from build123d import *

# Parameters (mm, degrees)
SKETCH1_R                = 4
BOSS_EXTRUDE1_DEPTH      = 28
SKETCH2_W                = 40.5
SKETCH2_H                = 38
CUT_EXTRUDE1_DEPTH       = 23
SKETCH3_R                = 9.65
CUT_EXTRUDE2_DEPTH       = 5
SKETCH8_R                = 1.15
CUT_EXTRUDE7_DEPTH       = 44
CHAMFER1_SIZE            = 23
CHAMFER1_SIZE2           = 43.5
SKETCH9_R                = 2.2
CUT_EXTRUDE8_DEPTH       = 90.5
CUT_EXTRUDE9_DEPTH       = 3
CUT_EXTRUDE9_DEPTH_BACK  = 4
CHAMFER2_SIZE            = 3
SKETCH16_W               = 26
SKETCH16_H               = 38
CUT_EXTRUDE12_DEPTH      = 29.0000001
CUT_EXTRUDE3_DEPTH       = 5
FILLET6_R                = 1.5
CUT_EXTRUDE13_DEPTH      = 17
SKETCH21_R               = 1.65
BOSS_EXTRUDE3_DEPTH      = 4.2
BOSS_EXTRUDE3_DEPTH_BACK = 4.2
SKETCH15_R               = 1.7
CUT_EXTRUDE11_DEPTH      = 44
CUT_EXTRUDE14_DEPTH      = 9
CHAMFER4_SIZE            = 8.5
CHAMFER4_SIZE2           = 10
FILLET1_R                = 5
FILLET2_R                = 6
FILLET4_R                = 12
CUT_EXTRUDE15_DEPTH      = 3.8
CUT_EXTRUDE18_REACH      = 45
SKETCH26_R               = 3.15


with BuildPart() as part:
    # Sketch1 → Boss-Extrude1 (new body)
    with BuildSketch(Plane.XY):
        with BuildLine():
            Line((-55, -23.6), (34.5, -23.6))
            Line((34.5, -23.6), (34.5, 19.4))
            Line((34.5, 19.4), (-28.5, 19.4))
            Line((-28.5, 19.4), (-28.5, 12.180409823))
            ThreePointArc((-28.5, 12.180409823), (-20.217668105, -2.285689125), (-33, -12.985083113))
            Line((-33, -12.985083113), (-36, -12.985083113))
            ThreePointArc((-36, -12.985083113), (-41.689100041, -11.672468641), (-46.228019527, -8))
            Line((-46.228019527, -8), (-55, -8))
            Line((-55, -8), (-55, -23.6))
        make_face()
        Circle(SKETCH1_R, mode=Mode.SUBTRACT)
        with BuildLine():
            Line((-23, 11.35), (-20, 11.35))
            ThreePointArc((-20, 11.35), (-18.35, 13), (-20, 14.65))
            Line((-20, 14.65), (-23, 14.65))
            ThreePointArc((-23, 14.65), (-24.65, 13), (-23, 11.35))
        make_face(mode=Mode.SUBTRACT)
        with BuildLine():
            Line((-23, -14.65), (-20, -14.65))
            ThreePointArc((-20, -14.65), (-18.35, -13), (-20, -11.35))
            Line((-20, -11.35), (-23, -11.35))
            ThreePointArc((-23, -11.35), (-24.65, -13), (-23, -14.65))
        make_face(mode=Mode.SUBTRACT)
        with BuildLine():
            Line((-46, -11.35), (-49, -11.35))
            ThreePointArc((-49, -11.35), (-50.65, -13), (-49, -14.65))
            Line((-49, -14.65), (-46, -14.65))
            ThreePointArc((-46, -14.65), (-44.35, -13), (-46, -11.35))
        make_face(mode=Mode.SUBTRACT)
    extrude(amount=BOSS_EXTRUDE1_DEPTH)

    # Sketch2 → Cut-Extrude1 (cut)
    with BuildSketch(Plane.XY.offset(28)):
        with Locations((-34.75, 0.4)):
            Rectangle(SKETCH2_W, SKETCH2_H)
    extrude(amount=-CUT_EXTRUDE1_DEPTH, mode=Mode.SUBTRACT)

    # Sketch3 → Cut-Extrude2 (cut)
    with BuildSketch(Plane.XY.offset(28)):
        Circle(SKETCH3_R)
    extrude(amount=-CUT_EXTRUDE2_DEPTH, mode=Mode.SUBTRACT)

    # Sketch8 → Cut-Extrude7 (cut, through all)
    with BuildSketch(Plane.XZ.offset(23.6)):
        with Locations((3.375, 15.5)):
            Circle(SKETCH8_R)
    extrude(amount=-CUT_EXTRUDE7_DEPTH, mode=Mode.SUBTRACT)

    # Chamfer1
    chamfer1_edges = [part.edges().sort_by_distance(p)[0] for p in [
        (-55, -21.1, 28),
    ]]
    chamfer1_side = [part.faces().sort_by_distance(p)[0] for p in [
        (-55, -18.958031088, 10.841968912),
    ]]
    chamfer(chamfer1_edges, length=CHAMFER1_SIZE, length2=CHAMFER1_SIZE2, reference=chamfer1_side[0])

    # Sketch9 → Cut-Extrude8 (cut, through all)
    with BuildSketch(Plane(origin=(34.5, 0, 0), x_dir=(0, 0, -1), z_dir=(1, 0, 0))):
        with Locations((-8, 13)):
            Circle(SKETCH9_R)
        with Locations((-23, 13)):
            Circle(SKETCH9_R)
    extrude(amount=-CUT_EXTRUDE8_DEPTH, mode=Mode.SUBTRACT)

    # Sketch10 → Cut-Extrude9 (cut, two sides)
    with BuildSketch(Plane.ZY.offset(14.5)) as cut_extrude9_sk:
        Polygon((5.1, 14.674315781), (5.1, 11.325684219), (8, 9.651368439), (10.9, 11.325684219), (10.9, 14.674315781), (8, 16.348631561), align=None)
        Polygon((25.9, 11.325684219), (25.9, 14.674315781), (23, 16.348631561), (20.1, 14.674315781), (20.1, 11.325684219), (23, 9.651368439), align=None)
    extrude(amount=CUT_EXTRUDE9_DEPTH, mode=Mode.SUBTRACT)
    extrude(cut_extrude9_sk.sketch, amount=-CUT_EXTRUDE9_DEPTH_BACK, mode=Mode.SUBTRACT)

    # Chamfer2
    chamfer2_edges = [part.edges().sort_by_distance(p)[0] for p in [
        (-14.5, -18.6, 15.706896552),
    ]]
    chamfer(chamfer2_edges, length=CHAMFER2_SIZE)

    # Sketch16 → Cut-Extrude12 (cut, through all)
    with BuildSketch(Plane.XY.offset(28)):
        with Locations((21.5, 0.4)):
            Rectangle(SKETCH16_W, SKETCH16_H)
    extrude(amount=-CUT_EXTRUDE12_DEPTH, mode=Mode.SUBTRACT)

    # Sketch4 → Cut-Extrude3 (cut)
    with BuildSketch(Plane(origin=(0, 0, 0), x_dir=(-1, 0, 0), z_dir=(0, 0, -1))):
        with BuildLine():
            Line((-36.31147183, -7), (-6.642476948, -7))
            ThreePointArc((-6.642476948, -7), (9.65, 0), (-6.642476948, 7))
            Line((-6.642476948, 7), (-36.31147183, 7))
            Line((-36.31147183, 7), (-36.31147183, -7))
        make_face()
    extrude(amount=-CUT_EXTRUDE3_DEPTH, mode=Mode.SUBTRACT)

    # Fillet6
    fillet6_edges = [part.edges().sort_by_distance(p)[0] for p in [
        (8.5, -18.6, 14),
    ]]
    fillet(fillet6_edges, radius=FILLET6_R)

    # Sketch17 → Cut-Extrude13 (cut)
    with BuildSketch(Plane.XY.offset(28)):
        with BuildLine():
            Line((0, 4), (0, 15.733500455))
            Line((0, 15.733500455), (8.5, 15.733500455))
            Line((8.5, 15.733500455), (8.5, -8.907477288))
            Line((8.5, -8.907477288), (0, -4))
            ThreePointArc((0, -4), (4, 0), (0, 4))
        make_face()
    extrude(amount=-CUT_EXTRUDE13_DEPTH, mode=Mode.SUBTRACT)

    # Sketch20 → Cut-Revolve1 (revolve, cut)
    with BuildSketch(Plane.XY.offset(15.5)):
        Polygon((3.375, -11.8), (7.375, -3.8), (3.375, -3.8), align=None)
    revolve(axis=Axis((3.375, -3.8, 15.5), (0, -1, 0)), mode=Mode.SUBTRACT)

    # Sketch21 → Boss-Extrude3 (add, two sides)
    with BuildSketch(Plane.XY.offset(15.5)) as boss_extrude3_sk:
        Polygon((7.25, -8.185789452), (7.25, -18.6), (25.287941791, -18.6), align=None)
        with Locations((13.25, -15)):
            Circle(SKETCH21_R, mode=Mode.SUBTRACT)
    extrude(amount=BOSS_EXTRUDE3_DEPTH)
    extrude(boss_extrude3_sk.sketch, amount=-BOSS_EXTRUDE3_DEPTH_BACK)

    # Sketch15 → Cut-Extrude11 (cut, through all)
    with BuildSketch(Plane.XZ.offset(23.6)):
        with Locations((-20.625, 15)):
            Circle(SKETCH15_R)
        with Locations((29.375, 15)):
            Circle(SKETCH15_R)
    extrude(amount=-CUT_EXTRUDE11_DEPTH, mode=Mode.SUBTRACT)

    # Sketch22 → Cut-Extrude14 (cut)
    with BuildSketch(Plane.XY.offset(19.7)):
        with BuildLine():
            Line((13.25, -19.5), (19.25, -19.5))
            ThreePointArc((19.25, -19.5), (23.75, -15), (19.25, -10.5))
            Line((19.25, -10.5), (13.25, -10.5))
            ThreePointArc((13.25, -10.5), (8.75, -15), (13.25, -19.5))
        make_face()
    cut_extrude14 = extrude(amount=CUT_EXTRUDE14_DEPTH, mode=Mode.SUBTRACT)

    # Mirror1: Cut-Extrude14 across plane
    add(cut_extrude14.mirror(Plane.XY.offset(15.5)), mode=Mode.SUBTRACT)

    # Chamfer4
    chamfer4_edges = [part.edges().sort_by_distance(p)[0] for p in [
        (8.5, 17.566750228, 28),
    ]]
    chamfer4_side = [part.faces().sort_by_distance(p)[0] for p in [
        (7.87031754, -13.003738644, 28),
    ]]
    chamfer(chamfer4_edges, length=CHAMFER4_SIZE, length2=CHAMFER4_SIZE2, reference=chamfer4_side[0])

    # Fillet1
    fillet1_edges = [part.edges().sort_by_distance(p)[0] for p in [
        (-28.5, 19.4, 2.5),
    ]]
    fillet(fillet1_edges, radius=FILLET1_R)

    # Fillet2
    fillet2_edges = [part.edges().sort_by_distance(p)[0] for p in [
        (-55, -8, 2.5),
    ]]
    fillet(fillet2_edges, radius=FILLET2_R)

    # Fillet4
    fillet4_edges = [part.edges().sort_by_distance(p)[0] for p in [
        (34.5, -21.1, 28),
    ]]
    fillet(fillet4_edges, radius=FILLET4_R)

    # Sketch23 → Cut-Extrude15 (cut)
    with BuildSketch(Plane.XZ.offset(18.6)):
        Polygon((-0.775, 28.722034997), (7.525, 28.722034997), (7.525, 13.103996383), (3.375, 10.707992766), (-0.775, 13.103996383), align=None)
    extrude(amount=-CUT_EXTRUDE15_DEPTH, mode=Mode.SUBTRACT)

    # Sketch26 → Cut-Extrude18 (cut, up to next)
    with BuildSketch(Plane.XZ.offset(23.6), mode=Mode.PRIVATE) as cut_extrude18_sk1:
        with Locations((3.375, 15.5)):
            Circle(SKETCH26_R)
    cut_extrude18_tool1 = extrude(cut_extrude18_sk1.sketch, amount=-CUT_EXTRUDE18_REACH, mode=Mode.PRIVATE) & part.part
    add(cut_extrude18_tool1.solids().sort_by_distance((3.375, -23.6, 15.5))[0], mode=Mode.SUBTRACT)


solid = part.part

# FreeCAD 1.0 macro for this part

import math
import FreeCAD as App
import Part
import Sketcher
from FreeCAD import Vector
Q = App.Units.Quantity


def edges_at(feature, points):
    """Names of the edges that pass closest to the given points."""
    edges = feature.Shape.Edges
    near = lambda p: min(range(len(edges)), key=lambda i: edges[i].distToShape(Part.Vertex(*p))[0])
    return sorted({f"Edge{near(p) + 1}" for p in points})


def add_polygon(sketch, points):
    """Adds a closed chain of lines whose ends are joined by coincident constraints."""
    first, n = sketch.GeometryCount, len(points)
    for a, b in zip(points, points[1:] + points[:1]):
        sketch.addGeometry(Part.LineSegment(App.Vector(*a, 0), App.Vector(*b, 0)), False)
    for i in range(n):
        sketch.addConstraint(Sketcher.Constraint("Coincident", first + i, 2, first + (i + 1) % n, 1))

doc = App.newDocument("Part")
body = doc.addObject("PartDesign::Body", "Body")

# Sketch on XY plane
sketch1 = body.newObject("Sketcher::SketchObject", "Sketch")
sketch1.AttachmentSupport = (doc.getObject("XY_Plane"), [""])
sketch1.MapMode = "FlatFace"
sketch1.addGeometry([
    Part.LineSegment(Vector(-55, -23.6, 0), Vector(34.5, -23.6, 0)),  # 0
    Part.LineSegment(Vector(34.5, -23.6, 0), Vector(34.5, 19.4, 0)),  # 1
    Part.LineSegment(Vector(34.5, 19.4, 0), Vector(-28.5, 19.4, 0)),  # 2
    Part.LineSegment(Vector(-28.5, 19.4, 0), Vector(-28.5, 12.18041, 0)),  # 3
    Part.ArcOfCircle(Part.Circle(Vector(-33, 0, 0), Vector(0, 0, 1), 12.985083), math.radians(-90), math.radians(69.723466)),  # 4
    Part.LineSegment(Vector(-33, -12.985083, 0), Vector(-36, -12.985083, 0)),  # 5
    Part.ArcOfCircle(Part.Circle(Vector(-36, 0, 0), Vector(0, 0, 1), 12.985083), math.radians(-141.968723), math.radians(-90)),  # 6
    Part.LineSegment(Vector(-46.22802, -8, 0), Vector(-55, -8, 0)),  # 7
    Part.LineSegment(Vector(-55, -8, 0), Vector(-55, -23.6, 0)),  # 8
    Part.LineSegment(Vector(-49, -11.35, 0), Vector(-46, -11.35, 0)),  # 9
    Part.ArcOfCircle(Part.Circle(Vector(-46, -13, 0), Vector(0, 0, 1), 1.65), math.radians(-90), math.radians(90)),  # 10
    Part.LineSegment(Vector(-46, -14.65, 0), Vector(-49, -14.65, 0)),  # 11
    Part.ArcOfCircle(Part.Circle(Vector(-49, -13, 0), Vector(0, 0, 1), 1.65), math.radians(90), math.radians(270)),  # 12
    Part.LineSegment(Vector(-20, -14.65, 0), Vector(-23, -14.65, 0)),  # 13
    Part.ArcOfCircle(Part.Circle(Vector(-23, -13, 0), Vector(0, 0, 1), 1.65), math.radians(90), math.radians(270)),  # 14
    Part.LineSegment(Vector(-23, -11.35, 0), Vector(-20, -11.35, 0)),  # 15
    Part.ArcOfCircle(Part.Circle(Vector(-20, -13, 0), Vector(0, 0, 1), 1.65), math.radians(-90), math.radians(90)),  # 16
    Part.Circle(Vector(0, 0, 0), Vector(0, 0, 1), 4),  # 17
    Part.LineSegment(Vector(-20, 11.35, 0), Vector(-23, 11.35, 0)),  # 18
    Part.ArcOfCircle(Part.Circle(Vector(-23, 13, 0), Vector(0, 0, 1), 1.65), math.radians(90), math.radians(270)),  # 19
    Part.LineSegment(Vector(-23, 14.65, 0), Vector(-20, 14.65, 0)),  # 20
    Part.ArcOfCircle(Part.Circle(Vector(-20, 13, 0), Vector(0, 0, 1), 1.65), math.radians(-90), math.radians(90)),  # 21
], False)
sketch1.addConstraint([
    Sketcher.Constraint("Coincident", 0, 2, 1, 1),
    Sketcher.Constraint("Coincident", 1, 2, 2, 1),
    Sketcher.Constraint("Coincident", 2, 2, 3, 1),
    Sketcher.Constraint("Coincident", 3, 2, 4, 2),
    Sketcher.Constraint("Tangent", 4, 1, 5, 1),
    Sketcher.Constraint("Tangent", 5, 2, 6, 2),
    Sketcher.Constraint("Coincident", 6, 1, 7, 1),
    Sketcher.Constraint("Coincident", 7, 2, 8, 1),
    Sketcher.Constraint("Coincident", 8, 2, 0, 1),
    Sketcher.Constraint("Tangent", 9, 2, 10, 2),
    Sketcher.Constraint("Tangent", 10, 1, 11, 1),
    Sketcher.Constraint("Tangent", 11, 2, 12, 2),
    Sketcher.Constraint("Tangent", 12, 1, 9, 1),
    Sketcher.Constraint("Tangent", 13, 2, 14, 2),
    Sketcher.Constraint("Tangent", 14, 1, 15, 1),
    Sketcher.Constraint("Tangent", 15, 2, 16, 2),
    Sketcher.Constraint("Tangent", 16, 1, 13, 1),
    Sketcher.Constraint("Tangent", 18, 2, 19, 2),
    Sketcher.Constraint("Tangent", 19, 1, 20, 1),
    Sketcher.Constraint("Tangent", 20, 2, 21, 2),
    Sketcher.Constraint("Tangent", 21, 1, 18, 1),
    Sketcher.Constraint("Horizontal", 0),
    Sketcher.Constraint("Vertical", 1),
    Sketcher.Constraint("Horizontal", 2),
    Sketcher.Constraint("Vertical", 3),
    Sketcher.Constraint("Horizontal", 5),
    Sketcher.Constraint("Horizontal", 7),
    Sketcher.Constraint("Vertical", 8),
    Sketcher.Constraint("Horizontal", 9),
    Sketcher.Constraint("Horizontal", 11),
    Sketcher.Constraint("Horizontal", 13),
    Sketcher.Constraint("Horizontal", 15),
    Sketcher.Constraint("Horizontal", 18),
    Sketcher.Constraint("Horizontal", 20),
    Sketcher.Constraint("Coincident", 17, 3, -1, 1),
    Sketcher.Constraint("Equal", 4, 6),
    Sketcher.Constraint("Equal", 12, 14),
    Sketcher.Constraint("Equal", 16, 19),
    Sketcher.Constraint("Symmetric", 14, 3, 19, 3, -1),
    Sketcher.Constraint("PointOnObject", 4, 3, -1),
    Sketcher.Constraint("Horizontal", 12, 3, 14, 3),
    Sketcher.Constraint("Vertical", 16, 3, 21, 3),
    Sketcher.Constraint("Equal", 5, 9),
    Sketcher.Constraint("Equal", 11, 13),
    Sketcher.Constraint("Diameter", 17, Q("8 mm")),
    Sketcher.Constraint("DistanceX", 2, 2, 2, 1, Q("63 mm")),
    Sketcher.Constraint("DistanceX", 5, 2, 5, 1, Q("3 mm")),
    Sketcher.Constraint("DistanceY", 1, 1, 1, 2, Q("43 mm")),
    Sketcher.Constraint("Radius", 10, Q("1.65 mm")),
    Sketcher.Constraint("DistanceX", 0, 1, 0, 2, Q("89.5 mm")),
    Sketcher.Constraint("DistanceY", 8, 2, 8, 1, Q("15.6 mm")),
    Sketcher.Constraint("DistanceX", 4, 3, -1, 1, Q("33 mm")),
    Sketcher.Constraint("DistanceX", 10, 3, -1, 1, Q("46 mm")),
    Sketcher.Constraint("DistanceY", 10, 3, -1, 1, Q("13 mm")),
    Sketcher.Constraint("DistanceX", 14, 3, -1, 1, Q("23 mm")),
    Sketcher.Constraint("DistanceY", 6, 1, -1, 1, Q("8 mm")),
    Sketcher.Constraint("DistanceX", 7, 2, -1, 1, Q("55 mm")),
    Sketcher.Constraint("Radius", 4, Q("12.985083 mm")),
])
pad1 = body.newObject("PartDesign::Pad", "Pad")
pad1.Profile = sketch1
pad1.Length = 28

# Sketch on XY plane
sketch2 = body.newObject("Sketcher::SketchObject", "Sketch001")
sketch2.AttachmentSupport = (doc.getObject("XY_Plane"), [""])
sketch2.MapMode = "FlatFace"
sketch2.AttachmentOffset = App.Placement(Vector(0, 0, 28), App.Rotation())
add_polygon(sketch2, [(-55, 19.4), (-55, -18.6), (-14.5, -18.6), (-14.5, 19.4)])  # lines 0-3
sketch2.addConstraint([
    Sketcher.Constraint("Vertical", 0),
    Sketcher.Constraint("Horizontal", 1),
    Sketcher.Constraint("Vertical", 2),
    Sketcher.Constraint("Horizontal", 3),
    Sketcher.Constraint("DistanceY", 0, 2, 0, 1, Q("38 mm")),
    Sketcher.Constraint("DistanceX", 1, 1, 1, 2, Q("40.5 mm")),
    Sketcher.Constraint("DistanceX", 0, 2, -1, 1, Q("55 mm")),
    Sketcher.Constraint("DistanceY", 0, 2, -1, 1, Q("18.6 mm")),
])
pocket1 = body.newObject("PartDesign::Pocket", "Pocket")
pocket1.Profile = sketch2
pocket1.Length = 23

# Sketch on XY plane
sketch3 = body.newObject("Sketcher::SketchObject", "Sketch002")
sketch3.AttachmentSupport = (doc.getObject("XY_Plane"), [""])
sketch3.MapMode = "FlatFace"
sketch3.AttachmentOffset = App.Placement(Vector(0, 0, 28), App.Rotation())
sketch3.addGeometry(Part.Circle(Vector(0, 0, 0), Vector(0, 0, 1), 9.65), False)
sketch3.addConstraint([
    Sketcher.Constraint("Coincident", 0, 3, -1, 1),
    Sketcher.Constraint("Diameter", 0, Q("19.3 mm")),
])
pocket2 = body.newObject("PartDesign::Pocket", "Pocket001")
pocket2.Profile = sketch3
pocket2.Length = 5

# Sketch on XZ plane
sketch4 = body.newObject("Sketcher::SketchObject", "Sketch003")
sketch4.AttachmentSupport = (doc.getObject("XZ_Plane"), [""])
sketch4.MapMode = "FlatFace"
sketch4.AttachmentOffset = App.Placement(Vector(0, 0, 23.6), App.Rotation())
sketch4.addGeometry(Part.Circle(Vector(3.375, 15.5, 0), Vector(0, 0, 1), 1.15), False)
sketch4.addConstraint([
    Sketcher.Constraint("Diameter", 0, Q("2.3 mm")),
    Sketcher.Constraint("DistanceY", -1, 1, 0, 3, Q("15.5 mm")),
    Sketcher.Constraint("DistanceX", -1, 1, 0, 3, Q("3.375 mm")),
])
pocket3 = body.newObject("PartDesign::Pocket", "Pocket002")
pocket3.Profile = sketch4
pocket3.Type = "ThroughAll"
doc.recompute()

chamfer = body.newObject("PartDesign::Chamfer", "Chamfer")
chamfer.Base = (pocket3, edges_at(pocket3, [(-55, -21.1, 28)]))
chamfer.ChamferType = "Two distances"
chamfer.Size = 23
chamfer.Size2 = 43.5

# Sketch on YZ plane
sketch5 = body.newObject("Sketcher::SketchObject", "Sketch004")
sketch5.AttachmentSupport = (doc.getObject("YZ_Plane"), [""])
sketch5.MapMode = "FlatFace"
sketch5.AttachmentOffset = App.Placement(Vector(0, 0, 34.5), App.Rotation())
sketch5.addGeometry([
    Part.Circle(Vector(13, 8, 0), Vector(0, 0, 1), 2.2),
    Part.Circle(Vector(13, 23, 0), Vector(0, 0, 1), 2.2),
], False)
sketch5.addConstraint([
    Sketcher.Constraint("Equal", 0, 1),
    Sketcher.Constraint("Vertical", 0, 3, 1, 3),
    Sketcher.Constraint("Diameter", 0, Q("4.4 mm")),
    Sketcher.Constraint("DistanceX", -1, 1, 0, 3, Q("13 mm")),
    Sketcher.Constraint("DistanceY", -1, 1, 0, 3, Q("8 mm")),
    Sketcher.Constraint("DistanceY", -1, 1, 1, 3, Q("23 mm")),
])
pocket4 = body.newObject("PartDesign::Pocket", "Pocket003")
pocket4.Profile = sketch5
pocket4.Type = "ThroughAll"

# Sketch on YZ plane
sketch6 = body.newObject("Sketcher::SketchObject", "Sketch005")
sketch6.AttachmentSupport = (doc.getObject("YZ_Plane"), [""])
sketch6.MapMode = "FlatFace"
sketch6.AttachmentOffset = App.Placement(Vector(0, 0, -14.5), App.Rotation())
add_polygon(sketch6, [(14.674316, 5.1), (11.325684, 5.1), (9.651368, 8), (11.325684, 10.9), (14.674316, 10.9), (16.348632, 8)])  # lines 0-5
add_polygon(sketch6, [(11.325684, 25.9), (14.674316, 25.9), (16.348632, 23), (14.674316, 20.1), (11.325684, 20.1), (9.651368, 23)])  # lines 6-11
sketch6.addConstraint([
    Sketcher.Constraint("Horizontal", 0),
    Sketcher.Constraint("Horizontal", 3),
    Sketcher.Constraint("Horizontal", 6),
    Sketcher.Constraint("Horizontal", 9),
    Sketcher.Constraint("Parallel", 1, 4),
    Sketcher.Constraint("Parallel", 2, 5),
    Sketcher.Constraint("Parallel", 4, 7),
    Sketcher.Constraint("Parallel", 5, 8),
    Sketcher.Constraint("Parallel", 7, 10),
    Sketcher.Constraint("Parallel", 8, 11),
    Sketcher.Constraint("Horizontal", 1, 2, 4, 2),
    Sketcher.Constraint("Horizontal", 7, 2, 10, 2),
    Sketcher.Constraint("Vertical", 0, 2, 2, 2),
    Sketcher.Constraint("Vertical", 3, 2, 5, 2),
    Sketcher.Constraint("Vertical", 5, 2, 6, 2),
    Sketcher.Constraint("Vertical", 4, 2, 7, 2),
    Sketcher.Constraint("Vertical", 6, 2, 8, 2),
    Sketcher.Constraint("Vertical", 2, 2, 9, 2),
    Sketcher.Constraint("Angle", 1, Q("120 deg")),
    Sketcher.Constraint("DistanceY", -1, 1, 1, 2, Q("8 mm")),
    Sketcher.Constraint("DistanceY", -1, 1, 7, 2, Q("23 mm")),
    Sketcher.Constraint("DistanceY", -1, 1, 0, 2, Q("5.1 mm")),
    Sketcher.Constraint("DistanceX", 0, 2, 0, 1, Q("3.348632 mm")),
    Sketcher.Constraint("DistanceX", -1, 1, 1, 2, Q("9.651368 mm")),
])
pocket5 = body.newObject("PartDesign::Pocket", "Pocket004")
pocket5.Profile = sketch6
pocket5.Type = "TwoLengths"
pocket5.Length = 3
pocket5.Length2 = 4
doc.recompute()

chamfer2 = body.newObject("PartDesign::Chamfer", "Chamfer001")
chamfer2.Base = (pocket5, edges_at(pocket5, [(-14.5, -18.6, 15.707)]))
chamfer2.Size = 3

# Sketch on XY plane
sketch7 = body.newObject("Sketcher::SketchObject", "Sketch006")
sketch7.AttachmentSupport = (doc.getObject("XY_Plane"), [""])
sketch7.MapMode = "FlatFace"
sketch7.AttachmentOffset = App.Placement(Vector(0, 0, 28), App.Rotation())
add_polygon(sketch7, [(8.5, 19.4), (8.5, -18.6), (34.5, -18.6), (34.5, 19.4)])  # lines 0-3
sketch7.addConstraint([
    Sketcher.Constraint("Vertical", 0),
    Sketcher.Constraint("Horizontal", 1),
    Sketcher.Constraint("Vertical", 2),
    Sketcher.Constraint("Horizontal", 3),
    Sketcher.Constraint("DistanceX", 1, 1, 1, 2, Q("26 mm")),
    Sketcher.Constraint("DistanceY", 0, 2, 0, 1, Q("38 mm")),
    Sketcher.Constraint("DistanceX", -1, 1, 0, 2, Q("8.5 mm")),
    Sketcher.Constraint("DistanceY", 0, 2, -1, 1, Q("18.6 mm")),
])
pocket6 = body.newObject("PartDesign::Pocket", "Pocket005")
pocket6.Profile = sketch7
pocket6.Type = "ThroughAll"

# Sketch on XY plane
sketch8 = body.newObject("Sketcher::SketchObject", "Sketch007")
sketch8.AttachmentSupport = (doc.getObject("XY_Plane"), [""])
sketch8.MapMode = "FlatFace"
sketch8.addGeometry([
    Part.LineSegment(Vector(36.311472, -7, 0), Vector(6.642477, -7, 0)),
    Part.ArcOfCircle(Part.Circle(Vector(0, 0, 0), Vector(0, 0, 1), 9.65), math.radians(46.501184), math.radians(313.498816)),
    Part.LineSegment(Vector(6.642477, 7, 0), Vector(36.311472, 7, 0)),
    Part.LineSegment(Vector(36.311472, 7, 0), Vector(36.311472, -7, 0)),
], False)
sketch8.addConstraint([
    Sketcher.Constraint("Coincident", 0, 2, 1, 2),
    Sketcher.Constraint("Coincident", 1, 1, 2, 1),
    Sketcher.Constraint("Coincident", 2, 2, 3, 1),
    Sketcher.Constraint("Coincident", 3, 2, 0, 1),
    Sketcher.Constraint("Horizontal", 0),
    Sketcher.Constraint("Horizontal", 2),
    Sketcher.Constraint("Vertical", 3),
    Sketcher.Constraint("Coincident", 1, 3, -1, 1),
    Sketcher.Constraint("Vertical", 0, 2, 1, 1),
    Sketcher.Constraint("DistanceY", 3, 2, 3, 1, Q("14 mm")),
    Sketcher.Constraint("Radius", 1, Q("9.65 mm")),
    Sketcher.Constraint("DistanceX", 0, 2, 0, 1, Q("29.668995 mm")),
])
pocket7 = body.newObject("PartDesign::Pocket", "Pocket006")
pocket7.Profile = sketch8
pocket7.Length = 5
pocket7.Reversed = True
doc.recompute()

fillet = body.newObject("PartDesign::Fillet", "Fillet")
fillet.Base = (pocket7, edges_at(pocket7, [(8.5, -18.6, 14)]))
fillet.Radius = 1.5

# Sketch on XY plane
sketch9 = body.newObject("Sketcher::SketchObject", "Sketch008")
sketch9.AttachmentSupport = (doc.getObject("XY_Plane"), [""])
sketch9.MapMode = "FlatFace"
sketch9.AttachmentOffset = App.Placement(Vector(0, 0, 28), App.Rotation())
sketch9.addGeometry([
    Part.LineSegment(Vector(0, 15.7335, 0), Vector(0, 4, 0)),  # 0
    Part.ArcOfCircle(Part.Circle(Vector(0, 0, 0), Vector(0, 0, 1), 4), math.radians(-90), math.radians(90)),  # 1
    Part.LineSegment(Vector(0, -4, 0), Vector(8.5, -8.907477, 0)),  # 2
    Part.LineSegment(Vector(8.5, -8.907477, 0), Vector(8.5, 15.7335, 0)),  # 3
    Part.LineSegment(Vector(8.5, 15.7335, 0), Vector(0, 15.7335, 0)),  # 4
], False)
sketch9.addConstraint([
    Sketcher.Constraint("Coincident", 0, 2, 1, 2),
    Sketcher.Constraint("Coincident", 1, 1, 2, 1),
    Sketcher.Constraint("Coincident", 2, 2, 3, 1),
    Sketcher.Constraint("Coincident", 3, 2, 4, 1),
    Sketcher.Constraint("Coincident", 4, 2, 0, 1),
    Sketcher.Constraint("Vertical", 0),
    Sketcher.Constraint("Vertical", 3),
    Sketcher.Constraint("Horizontal", 4),
    Sketcher.Constraint("Coincident", 1, 3, -1, 1),
    Sketcher.Constraint("PointOnObject", 0, 2, -2),
    Sketcher.Constraint("PointOnObject", 1, 1, -2),
    Sketcher.Constraint("Radius", 1, Q("4 mm")),
    Sketcher.Constraint("Angle", 2, Q("-30 deg")),
    Sketcher.Constraint("DistanceX", 4, 2, 4, 1, Q("8.5 mm")),
    Sketcher.Constraint("DistanceY", 0, 2, 0, 1, Q("11.7335 mm")),
])
pocket8 = body.newObject("PartDesign::Pocket", "Pocket007")
pocket8.Profile = sketch9
pocket8.Length = 17

# Sketch on XY plane
sketch10 = body.newObject("Sketcher::SketchObject", "Sketch009")
sketch10.AttachmentSupport = (doc.getObject("XY_Plane"), [""])
sketch10.MapMode = "FlatFace"
sketch10.AttachmentOffset = App.Placement(Vector(0, 0, 15.5), App.Rotation())
add_polygon(sketch10, [(3.375, -11.8), (7.375, -3.8), (3.375, -3.8)])  # lines 0-2
sketch10.addGeometry(Part.LineSegment(Vector(3.375, -3.8, 0), Vector(3.375, -11.8, 0)), True)  # axis
sketch10.addConstraint([
    Sketcher.Constraint("Horizontal", 1),
    Sketcher.Constraint("Vertical", 2),
    Sketcher.Constraint("Vertical", 3),
    Sketcher.Constraint("Coincident", 3, 1, 1, 2),
    Sketcher.Constraint("Equal", 2, 3),
    Sketcher.Constraint("DistanceX", 1, 2, 1, 1, Q("4 mm")),
    Sketcher.Constraint("DistanceY", 2, 2, 2, 1, Q("8 mm")),
    Sketcher.Constraint("DistanceY", 0, 2, -1, 1, Q("3.8 mm")),
    Sketcher.Constraint("DistanceX", -1, 1, 0, 2, Q("7.375 mm")),
])
groove = body.newObject("PartDesign::Groove", "Groove")
groove.Profile = sketch10
groove.ReferenceAxis = (sketch10, ["Axis0"])
groove.Angle = 360

# Sketch on XY plane
sketch11 = body.newObject("Sketcher::SketchObject", "Sketch010")
sketch11.AttachmentSupport = (doc.getObject("XY_Plane"), [""])
sketch11.MapMode = "FlatFace"
sketch11.AttachmentOffset = App.Placement(Vector(0, 0, 15.5), App.Rotation())
add_polygon(sketch11, [(7.25, -8.185789), (7.25, -18.6), (25.287942, -18.6)])  # lines 0-2
sketch11.addGeometry(Part.Circle(Vector(13.25, -15, 0), Vector(0, 0, 1), 1.65), False)  # 3
sketch11.addConstraint([
    Sketcher.Constraint("Vertical", 0),
    Sketcher.Constraint("Horizontal", 1),
    Sketcher.Constraint("Diameter", 3, Q("3.3 mm")),
    Sketcher.Constraint("Angle", 2, Q("150 deg")),
    Sketcher.Constraint("DistanceY", 3, 3, -1, 1, Q("15 mm")),
    Sketcher.Constraint("DistanceX", 0, 2, 3, 3, Q("6 mm")),
    Sketcher.Constraint("DistanceY", 0, 2, -1, 1, Q("18.6 mm")),
    Sketcher.Constraint("DistanceX", -1, 1, 3, 3, Q("13.25 mm")),
    Sketcher.Constraint("DistanceX", 1, 1, 1, 2, Q("18.037942 mm")),
])
pad2 = body.newObject("PartDesign::Pad", "Pad001")
pad2.Profile = sketch11
pad2.Type = "TwoLengths"
pad2.Length = 4.2
pad2.Length2 = 4.2

# Sketch on XZ plane
sketch12 = body.newObject("Sketcher::SketchObject", "Sketch011")
sketch12.AttachmentSupport = (doc.getObject("XZ_Plane"), [""])
sketch12.MapMode = "FlatFace"
sketch12.AttachmentOffset = App.Placement(Vector(0, 0, 23.6), App.Rotation())
sketch12.addGeometry([
    Part.Circle(Vector(-20.625, 15, 0), Vector(0, 0, 1), 1.7),
    Part.Circle(Vector(29.375, 15, 0), Vector(0, 0, 1), 1.7),
], False)
sketch12.addConstraint([
    Sketcher.Constraint("Equal", 0, 1),
    Sketcher.Constraint("Horizontal", 0, 3, 1, 3),
    Sketcher.Constraint("Diameter", 0, Q("3.4 mm")),
    Sketcher.Constraint("DistanceY", -1, 1, 0, 3, Q("15 mm")),
    Sketcher.Constraint("DistanceX", 0, 3, 1, 3, Q("50 mm")),
    Sketcher.Constraint("DistanceX", 0, 3, -1, 1, Q("20.625 mm")),
])
pocket9 = body.newObject("PartDesign::Pocket", "Pocket008")
pocket9.Profile = sketch12
pocket9.Type = "ThroughAll"

# Sketch on XY plane
sketch13 = body.newObject("Sketcher::SketchObject", "Sketch012")
sketch13.AttachmentSupport = (doc.getObject("XY_Plane"), [""])
sketch13.MapMode = "FlatFace"
sketch13.AttachmentOffset = App.Placement(Vector(0, 0, 19.7), App.Rotation())
sketch13.addGeometry([
    Part.LineSegment(Vector(13.25, -19.5, 0), Vector(19.25, -19.5, 0)),
    Part.ArcOfCircle(Part.Circle(Vector(19.25, -15, 0), Vector(0, 0, 1), 4.5), math.radians(-90), math.radians(90)),
    Part.LineSegment(Vector(19.25, -10.5, 0), Vector(13.25, -10.5, 0)),
    Part.ArcOfCircle(Part.Circle(Vector(13.25, -15, 0), Vector(0, 0, 1), 4.5), math.radians(90), math.radians(270)),
], False)
sketch13.addConstraint([
    Sketcher.Constraint("Tangent", 0, 2, 1, 1),
    Sketcher.Constraint("Tangent", 1, 2, 2, 1),
    Sketcher.Constraint("Tangent", 2, 2, 3, 1),
    Sketcher.Constraint("Tangent", 3, 2, 0, 1),
    Sketcher.Constraint("Horizontal", 0),
    Sketcher.Constraint("Horizontal", 2),
    Sketcher.Constraint("Radius", 1, Q("4.5 mm")),
    Sketcher.Constraint("DistanceX", 0, 1, 0, 2, Q("6 mm")),
    Sketcher.Constraint("DistanceY", 1, 3, -1, 1, Q("15 mm")),
    Sketcher.Constraint("DistanceX", -1, 1, 1, 3, Q("19.25 mm")),
])
pocket10 = body.newObject("PartDesign::Pocket", "Pocket009")
pocket10.Profile = sketch13
pocket10.Length = 9
pocket10.Reversed = True
doc.recompute()

datumplane = body.newObject("PartDesign::Plane", "DatumPlane")
datumplane.AttachmentSupport = (doc.getObject("XY_Plane"), [""])
datumplane.MapMode = "FlatFace"
datumplane.AttachmentOffset = App.Placement(Vector(0, 0, 15.5), App.Rotation())
mirrored = body.newObject("PartDesign::Mirrored", "Mirrored")
mirrored.Originals = [pocket10]
mirrored.MirrorPlane = (datumplane, [""])
body.Tip = mirrored
doc.recompute()

chamfer3 = body.newObject("PartDesign::Chamfer", "Chamfer002")
chamfer3.Base = (mirrored, edges_at(mirrored, [(8.5, 17.567, 28)]))
chamfer3.ChamferType = "Two distances"
chamfer3.Size = 8.5
chamfer3.Size2 = 10
doc.recompute()

fillet2 = body.newObject("PartDesign::Fillet", "Fillet001")
fillet2.Base = (chamfer3, edges_at(chamfer3, [(-28.5, 19.4, 2.5)]))
fillet2.Radius = 5
doc.recompute()

fillet3 = body.newObject("PartDesign::Fillet", "Fillet002")
fillet3.Base = (fillet2, edges_at(fillet2, [(-55, -8, 2.5)]))
fillet3.Radius = 6
doc.recompute()

fillet4 = body.newObject("PartDesign::Fillet", "Fillet003")
fillet4.Base = (fillet3, edges_at(fillet3, [(34.5, -21.1, 28)]))
fillet4.Radius = 12

# Sketch on XZ plane
sketch14 = body.newObject("Sketcher::SketchObject", "Sketch013")
sketch14.AttachmentSupport = (doc.getObject("XZ_Plane"), [""])
sketch14.MapMode = "FlatFace"
sketch14.AttachmentOffset = App.Placement(Vector(0, 0, 18.6), App.Rotation())
add_polygon(sketch14, [(7.525, 28.722035), (-0.775, 28.722035), (-0.775, 13.103996), (3.375, 10.707993), (7.525, 13.103996)])  # lines 0-4
sketch14.addConstraint([
    Sketcher.Constraint("Horizontal", 0),
    Sketcher.Constraint("Vertical", 1),
    Sketcher.Constraint("Vertical", 4),
    Sketcher.Constraint("Horizontal", 1, 2, 3, 2),
    Sketcher.Constraint("Equal", 2, 3),
    Sketcher.Constraint("Angle", 2, Q("-30 deg")),
    Sketcher.Constraint("DistanceX", 0, 2, 0, 1, Q("8.3 mm")),
    Sketcher.Constraint("DistanceX", 0, 2, -1, 1, Q("0.775 mm")),
    Sketcher.Constraint("DistanceY", 1, 2, 1, 1, Q("15.618039 mm")),
    Sketcher.Constraint("DistanceY", -1, 1, 0, 2, Q("28.722035 mm")),
])
pocket11 = body.newObject("PartDesign::Pocket", "Pocket010")
pocket11.Profile = sketch14
pocket11.Length = 3.8

# Sketch on XZ plane
sketch15 = body.newObject("Sketcher::SketchObject", "Sketch014")
sketch15.AttachmentSupport = (doc.getObject("XZ_Plane"), [""])
sketch15.MapMode = "FlatFace"
sketch15.AttachmentOffset = App.Placement(Vector(0, 0, 23.6), App.Rotation())
sketch15.addGeometry(Part.Circle(Vector(3.375, 15.5, 0), Vector(0, 0, 1), 3.15), False)
sketch15.addConstraint([
    Sketcher.Constraint("Diameter", 0, Q("6.3 mm")),
    Sketcher.Constraint("DistanceY", -1, 1, 0, 3, Q("15.5 mm")),
    Sketcher.Constraint("DistanceX", -1, 1, 0, 3, Q("3.375 mm")),
])
pocket12 = body.newObject("PartDesign::Pocket", "Pocket011")
pocket12.Profile = sketch15
pocket12.Length = 5

doc.recompute()
